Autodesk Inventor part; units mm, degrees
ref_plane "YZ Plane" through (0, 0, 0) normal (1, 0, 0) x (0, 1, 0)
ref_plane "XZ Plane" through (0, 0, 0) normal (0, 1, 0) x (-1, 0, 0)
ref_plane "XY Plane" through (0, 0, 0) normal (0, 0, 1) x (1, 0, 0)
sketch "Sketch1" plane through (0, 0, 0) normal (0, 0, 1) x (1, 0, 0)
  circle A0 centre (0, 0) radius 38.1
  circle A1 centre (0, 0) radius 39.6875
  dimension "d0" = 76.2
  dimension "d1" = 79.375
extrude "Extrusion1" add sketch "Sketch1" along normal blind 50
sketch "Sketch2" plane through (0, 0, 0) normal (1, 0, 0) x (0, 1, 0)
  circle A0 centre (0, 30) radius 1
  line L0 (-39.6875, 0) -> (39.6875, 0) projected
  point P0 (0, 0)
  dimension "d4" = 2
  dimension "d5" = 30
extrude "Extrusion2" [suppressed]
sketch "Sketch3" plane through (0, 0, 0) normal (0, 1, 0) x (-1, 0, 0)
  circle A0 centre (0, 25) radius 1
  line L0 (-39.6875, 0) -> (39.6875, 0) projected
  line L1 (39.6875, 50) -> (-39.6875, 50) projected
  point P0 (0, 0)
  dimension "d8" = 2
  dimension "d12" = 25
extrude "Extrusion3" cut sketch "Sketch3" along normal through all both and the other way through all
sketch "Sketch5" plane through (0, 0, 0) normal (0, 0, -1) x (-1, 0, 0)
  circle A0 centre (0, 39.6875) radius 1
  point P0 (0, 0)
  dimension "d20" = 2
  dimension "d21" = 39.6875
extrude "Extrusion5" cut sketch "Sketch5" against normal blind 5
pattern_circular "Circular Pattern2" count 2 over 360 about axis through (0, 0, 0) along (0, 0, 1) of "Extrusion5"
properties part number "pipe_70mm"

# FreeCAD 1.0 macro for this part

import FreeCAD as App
import Part
import Sketcher
from FreeCAD import Vector
Q = App.Units.Quantity

doc = App.newDocument("Part")
body = doc.addObject("PartDesign::Body", "Body")

# Sketch on XY plane
sketch1 = body.newObject("Sketcher::SketchObject", "Sketch")
sketch1.AttachmentSupport = (doc.getObject("XY_Plane"), [""])
sketch1.MapMode = "FlatFace"
sketch1.addGeometry([
    Part.Circle(Vector(0, 0, 0), Vector(0, 0, 1), 40),
    Part.Circle(Vector(0, 0, 0), Vector(0, 0, 1), 38),
], False)
sketch1.addConstraint([
    Sketcher.Constraint("Coincident", 0, 3, -1, 1),
    Sketcher.Constraint("Coincident", 1, 3, -1, 1),
    Sketcher.Constraint("Diameter", 1, Q("76.2 mm")),
    Sketcher.Constraint("Diameter", 0, Q("79.375 mm")),
])
pad1 = body.newObject("PartDesign::Pad", "Pad")
pad1.Profile = sketch1
pad1.Length = 50

# Sketch on XZ plane
sketch2 = body.newObject("Sketcher::SketchObject", "Sketch001")
sketch2.AttachmentSupport = (doc.getObject("XZ_Plane"), [""])
sketch2.MapMode = "FlatFace"
sketch2.addGeometry(Part.Circle(Vector(0, 25, 0), Vector(0, 0, 1), 1), False)
sketch2.addConstraint([
    Sketcher.Constraint("PointOnObject", 0, 3, -2),
    Sketcher.Constraint("Diameter", 0, Q("2 mm")),
    Sketcher.Constraint("DistanceY", -1, 1, 0, 3, Q("25 mm")),
])
pocket1 = body.newObject("PartDesign::Pocket", "Pocket")
pocket1.Profile = sketch2
pocket1.Type = "ThroughAll"
pocket1.Midplane = True

# Sketch on XY plane
sketch3 = body.newObject("Sketcher::SketchObject", "Sketch002")
sketch3.AttachmentSupport = (doc.getObject("XY_Plane"), [""])
sketch3.MapMode = "FlatFace"
sketch3.addGeometry(Part.Circle(Vector(0, 39.7, 0), Vector(0, 0, 1), 1), False)
sketch3.addConstraint([
    Sketcher.Constraint("PointOnObject", 0, 3, -2),
    Sketcher.Constraint("Diameter", 0, Q("2 mm")),
    Sketcher.Constraint("DistanceY", -1, 1, 0, 3, Q("39.6875 mm")),
])
pocket2 = body.newObject("PartDesign::Pocket", "Pocket001")
pocket2.Profile = sketch3
pocket2.Length = 5
pocket2.Reversed = True
doc.recompute()

polarpattern = body.newObject("PartDesign::PolarPattern", "PolarPattern")
polarpattern.Originals = [pocket2]
polarpattern.Axis = (doc.getObject("Z_Axis"), [""])
polarpattern.Angle = 360
polarpattern.Occurrences = 2
body.Tip = polarpattern

doc.recompute()
